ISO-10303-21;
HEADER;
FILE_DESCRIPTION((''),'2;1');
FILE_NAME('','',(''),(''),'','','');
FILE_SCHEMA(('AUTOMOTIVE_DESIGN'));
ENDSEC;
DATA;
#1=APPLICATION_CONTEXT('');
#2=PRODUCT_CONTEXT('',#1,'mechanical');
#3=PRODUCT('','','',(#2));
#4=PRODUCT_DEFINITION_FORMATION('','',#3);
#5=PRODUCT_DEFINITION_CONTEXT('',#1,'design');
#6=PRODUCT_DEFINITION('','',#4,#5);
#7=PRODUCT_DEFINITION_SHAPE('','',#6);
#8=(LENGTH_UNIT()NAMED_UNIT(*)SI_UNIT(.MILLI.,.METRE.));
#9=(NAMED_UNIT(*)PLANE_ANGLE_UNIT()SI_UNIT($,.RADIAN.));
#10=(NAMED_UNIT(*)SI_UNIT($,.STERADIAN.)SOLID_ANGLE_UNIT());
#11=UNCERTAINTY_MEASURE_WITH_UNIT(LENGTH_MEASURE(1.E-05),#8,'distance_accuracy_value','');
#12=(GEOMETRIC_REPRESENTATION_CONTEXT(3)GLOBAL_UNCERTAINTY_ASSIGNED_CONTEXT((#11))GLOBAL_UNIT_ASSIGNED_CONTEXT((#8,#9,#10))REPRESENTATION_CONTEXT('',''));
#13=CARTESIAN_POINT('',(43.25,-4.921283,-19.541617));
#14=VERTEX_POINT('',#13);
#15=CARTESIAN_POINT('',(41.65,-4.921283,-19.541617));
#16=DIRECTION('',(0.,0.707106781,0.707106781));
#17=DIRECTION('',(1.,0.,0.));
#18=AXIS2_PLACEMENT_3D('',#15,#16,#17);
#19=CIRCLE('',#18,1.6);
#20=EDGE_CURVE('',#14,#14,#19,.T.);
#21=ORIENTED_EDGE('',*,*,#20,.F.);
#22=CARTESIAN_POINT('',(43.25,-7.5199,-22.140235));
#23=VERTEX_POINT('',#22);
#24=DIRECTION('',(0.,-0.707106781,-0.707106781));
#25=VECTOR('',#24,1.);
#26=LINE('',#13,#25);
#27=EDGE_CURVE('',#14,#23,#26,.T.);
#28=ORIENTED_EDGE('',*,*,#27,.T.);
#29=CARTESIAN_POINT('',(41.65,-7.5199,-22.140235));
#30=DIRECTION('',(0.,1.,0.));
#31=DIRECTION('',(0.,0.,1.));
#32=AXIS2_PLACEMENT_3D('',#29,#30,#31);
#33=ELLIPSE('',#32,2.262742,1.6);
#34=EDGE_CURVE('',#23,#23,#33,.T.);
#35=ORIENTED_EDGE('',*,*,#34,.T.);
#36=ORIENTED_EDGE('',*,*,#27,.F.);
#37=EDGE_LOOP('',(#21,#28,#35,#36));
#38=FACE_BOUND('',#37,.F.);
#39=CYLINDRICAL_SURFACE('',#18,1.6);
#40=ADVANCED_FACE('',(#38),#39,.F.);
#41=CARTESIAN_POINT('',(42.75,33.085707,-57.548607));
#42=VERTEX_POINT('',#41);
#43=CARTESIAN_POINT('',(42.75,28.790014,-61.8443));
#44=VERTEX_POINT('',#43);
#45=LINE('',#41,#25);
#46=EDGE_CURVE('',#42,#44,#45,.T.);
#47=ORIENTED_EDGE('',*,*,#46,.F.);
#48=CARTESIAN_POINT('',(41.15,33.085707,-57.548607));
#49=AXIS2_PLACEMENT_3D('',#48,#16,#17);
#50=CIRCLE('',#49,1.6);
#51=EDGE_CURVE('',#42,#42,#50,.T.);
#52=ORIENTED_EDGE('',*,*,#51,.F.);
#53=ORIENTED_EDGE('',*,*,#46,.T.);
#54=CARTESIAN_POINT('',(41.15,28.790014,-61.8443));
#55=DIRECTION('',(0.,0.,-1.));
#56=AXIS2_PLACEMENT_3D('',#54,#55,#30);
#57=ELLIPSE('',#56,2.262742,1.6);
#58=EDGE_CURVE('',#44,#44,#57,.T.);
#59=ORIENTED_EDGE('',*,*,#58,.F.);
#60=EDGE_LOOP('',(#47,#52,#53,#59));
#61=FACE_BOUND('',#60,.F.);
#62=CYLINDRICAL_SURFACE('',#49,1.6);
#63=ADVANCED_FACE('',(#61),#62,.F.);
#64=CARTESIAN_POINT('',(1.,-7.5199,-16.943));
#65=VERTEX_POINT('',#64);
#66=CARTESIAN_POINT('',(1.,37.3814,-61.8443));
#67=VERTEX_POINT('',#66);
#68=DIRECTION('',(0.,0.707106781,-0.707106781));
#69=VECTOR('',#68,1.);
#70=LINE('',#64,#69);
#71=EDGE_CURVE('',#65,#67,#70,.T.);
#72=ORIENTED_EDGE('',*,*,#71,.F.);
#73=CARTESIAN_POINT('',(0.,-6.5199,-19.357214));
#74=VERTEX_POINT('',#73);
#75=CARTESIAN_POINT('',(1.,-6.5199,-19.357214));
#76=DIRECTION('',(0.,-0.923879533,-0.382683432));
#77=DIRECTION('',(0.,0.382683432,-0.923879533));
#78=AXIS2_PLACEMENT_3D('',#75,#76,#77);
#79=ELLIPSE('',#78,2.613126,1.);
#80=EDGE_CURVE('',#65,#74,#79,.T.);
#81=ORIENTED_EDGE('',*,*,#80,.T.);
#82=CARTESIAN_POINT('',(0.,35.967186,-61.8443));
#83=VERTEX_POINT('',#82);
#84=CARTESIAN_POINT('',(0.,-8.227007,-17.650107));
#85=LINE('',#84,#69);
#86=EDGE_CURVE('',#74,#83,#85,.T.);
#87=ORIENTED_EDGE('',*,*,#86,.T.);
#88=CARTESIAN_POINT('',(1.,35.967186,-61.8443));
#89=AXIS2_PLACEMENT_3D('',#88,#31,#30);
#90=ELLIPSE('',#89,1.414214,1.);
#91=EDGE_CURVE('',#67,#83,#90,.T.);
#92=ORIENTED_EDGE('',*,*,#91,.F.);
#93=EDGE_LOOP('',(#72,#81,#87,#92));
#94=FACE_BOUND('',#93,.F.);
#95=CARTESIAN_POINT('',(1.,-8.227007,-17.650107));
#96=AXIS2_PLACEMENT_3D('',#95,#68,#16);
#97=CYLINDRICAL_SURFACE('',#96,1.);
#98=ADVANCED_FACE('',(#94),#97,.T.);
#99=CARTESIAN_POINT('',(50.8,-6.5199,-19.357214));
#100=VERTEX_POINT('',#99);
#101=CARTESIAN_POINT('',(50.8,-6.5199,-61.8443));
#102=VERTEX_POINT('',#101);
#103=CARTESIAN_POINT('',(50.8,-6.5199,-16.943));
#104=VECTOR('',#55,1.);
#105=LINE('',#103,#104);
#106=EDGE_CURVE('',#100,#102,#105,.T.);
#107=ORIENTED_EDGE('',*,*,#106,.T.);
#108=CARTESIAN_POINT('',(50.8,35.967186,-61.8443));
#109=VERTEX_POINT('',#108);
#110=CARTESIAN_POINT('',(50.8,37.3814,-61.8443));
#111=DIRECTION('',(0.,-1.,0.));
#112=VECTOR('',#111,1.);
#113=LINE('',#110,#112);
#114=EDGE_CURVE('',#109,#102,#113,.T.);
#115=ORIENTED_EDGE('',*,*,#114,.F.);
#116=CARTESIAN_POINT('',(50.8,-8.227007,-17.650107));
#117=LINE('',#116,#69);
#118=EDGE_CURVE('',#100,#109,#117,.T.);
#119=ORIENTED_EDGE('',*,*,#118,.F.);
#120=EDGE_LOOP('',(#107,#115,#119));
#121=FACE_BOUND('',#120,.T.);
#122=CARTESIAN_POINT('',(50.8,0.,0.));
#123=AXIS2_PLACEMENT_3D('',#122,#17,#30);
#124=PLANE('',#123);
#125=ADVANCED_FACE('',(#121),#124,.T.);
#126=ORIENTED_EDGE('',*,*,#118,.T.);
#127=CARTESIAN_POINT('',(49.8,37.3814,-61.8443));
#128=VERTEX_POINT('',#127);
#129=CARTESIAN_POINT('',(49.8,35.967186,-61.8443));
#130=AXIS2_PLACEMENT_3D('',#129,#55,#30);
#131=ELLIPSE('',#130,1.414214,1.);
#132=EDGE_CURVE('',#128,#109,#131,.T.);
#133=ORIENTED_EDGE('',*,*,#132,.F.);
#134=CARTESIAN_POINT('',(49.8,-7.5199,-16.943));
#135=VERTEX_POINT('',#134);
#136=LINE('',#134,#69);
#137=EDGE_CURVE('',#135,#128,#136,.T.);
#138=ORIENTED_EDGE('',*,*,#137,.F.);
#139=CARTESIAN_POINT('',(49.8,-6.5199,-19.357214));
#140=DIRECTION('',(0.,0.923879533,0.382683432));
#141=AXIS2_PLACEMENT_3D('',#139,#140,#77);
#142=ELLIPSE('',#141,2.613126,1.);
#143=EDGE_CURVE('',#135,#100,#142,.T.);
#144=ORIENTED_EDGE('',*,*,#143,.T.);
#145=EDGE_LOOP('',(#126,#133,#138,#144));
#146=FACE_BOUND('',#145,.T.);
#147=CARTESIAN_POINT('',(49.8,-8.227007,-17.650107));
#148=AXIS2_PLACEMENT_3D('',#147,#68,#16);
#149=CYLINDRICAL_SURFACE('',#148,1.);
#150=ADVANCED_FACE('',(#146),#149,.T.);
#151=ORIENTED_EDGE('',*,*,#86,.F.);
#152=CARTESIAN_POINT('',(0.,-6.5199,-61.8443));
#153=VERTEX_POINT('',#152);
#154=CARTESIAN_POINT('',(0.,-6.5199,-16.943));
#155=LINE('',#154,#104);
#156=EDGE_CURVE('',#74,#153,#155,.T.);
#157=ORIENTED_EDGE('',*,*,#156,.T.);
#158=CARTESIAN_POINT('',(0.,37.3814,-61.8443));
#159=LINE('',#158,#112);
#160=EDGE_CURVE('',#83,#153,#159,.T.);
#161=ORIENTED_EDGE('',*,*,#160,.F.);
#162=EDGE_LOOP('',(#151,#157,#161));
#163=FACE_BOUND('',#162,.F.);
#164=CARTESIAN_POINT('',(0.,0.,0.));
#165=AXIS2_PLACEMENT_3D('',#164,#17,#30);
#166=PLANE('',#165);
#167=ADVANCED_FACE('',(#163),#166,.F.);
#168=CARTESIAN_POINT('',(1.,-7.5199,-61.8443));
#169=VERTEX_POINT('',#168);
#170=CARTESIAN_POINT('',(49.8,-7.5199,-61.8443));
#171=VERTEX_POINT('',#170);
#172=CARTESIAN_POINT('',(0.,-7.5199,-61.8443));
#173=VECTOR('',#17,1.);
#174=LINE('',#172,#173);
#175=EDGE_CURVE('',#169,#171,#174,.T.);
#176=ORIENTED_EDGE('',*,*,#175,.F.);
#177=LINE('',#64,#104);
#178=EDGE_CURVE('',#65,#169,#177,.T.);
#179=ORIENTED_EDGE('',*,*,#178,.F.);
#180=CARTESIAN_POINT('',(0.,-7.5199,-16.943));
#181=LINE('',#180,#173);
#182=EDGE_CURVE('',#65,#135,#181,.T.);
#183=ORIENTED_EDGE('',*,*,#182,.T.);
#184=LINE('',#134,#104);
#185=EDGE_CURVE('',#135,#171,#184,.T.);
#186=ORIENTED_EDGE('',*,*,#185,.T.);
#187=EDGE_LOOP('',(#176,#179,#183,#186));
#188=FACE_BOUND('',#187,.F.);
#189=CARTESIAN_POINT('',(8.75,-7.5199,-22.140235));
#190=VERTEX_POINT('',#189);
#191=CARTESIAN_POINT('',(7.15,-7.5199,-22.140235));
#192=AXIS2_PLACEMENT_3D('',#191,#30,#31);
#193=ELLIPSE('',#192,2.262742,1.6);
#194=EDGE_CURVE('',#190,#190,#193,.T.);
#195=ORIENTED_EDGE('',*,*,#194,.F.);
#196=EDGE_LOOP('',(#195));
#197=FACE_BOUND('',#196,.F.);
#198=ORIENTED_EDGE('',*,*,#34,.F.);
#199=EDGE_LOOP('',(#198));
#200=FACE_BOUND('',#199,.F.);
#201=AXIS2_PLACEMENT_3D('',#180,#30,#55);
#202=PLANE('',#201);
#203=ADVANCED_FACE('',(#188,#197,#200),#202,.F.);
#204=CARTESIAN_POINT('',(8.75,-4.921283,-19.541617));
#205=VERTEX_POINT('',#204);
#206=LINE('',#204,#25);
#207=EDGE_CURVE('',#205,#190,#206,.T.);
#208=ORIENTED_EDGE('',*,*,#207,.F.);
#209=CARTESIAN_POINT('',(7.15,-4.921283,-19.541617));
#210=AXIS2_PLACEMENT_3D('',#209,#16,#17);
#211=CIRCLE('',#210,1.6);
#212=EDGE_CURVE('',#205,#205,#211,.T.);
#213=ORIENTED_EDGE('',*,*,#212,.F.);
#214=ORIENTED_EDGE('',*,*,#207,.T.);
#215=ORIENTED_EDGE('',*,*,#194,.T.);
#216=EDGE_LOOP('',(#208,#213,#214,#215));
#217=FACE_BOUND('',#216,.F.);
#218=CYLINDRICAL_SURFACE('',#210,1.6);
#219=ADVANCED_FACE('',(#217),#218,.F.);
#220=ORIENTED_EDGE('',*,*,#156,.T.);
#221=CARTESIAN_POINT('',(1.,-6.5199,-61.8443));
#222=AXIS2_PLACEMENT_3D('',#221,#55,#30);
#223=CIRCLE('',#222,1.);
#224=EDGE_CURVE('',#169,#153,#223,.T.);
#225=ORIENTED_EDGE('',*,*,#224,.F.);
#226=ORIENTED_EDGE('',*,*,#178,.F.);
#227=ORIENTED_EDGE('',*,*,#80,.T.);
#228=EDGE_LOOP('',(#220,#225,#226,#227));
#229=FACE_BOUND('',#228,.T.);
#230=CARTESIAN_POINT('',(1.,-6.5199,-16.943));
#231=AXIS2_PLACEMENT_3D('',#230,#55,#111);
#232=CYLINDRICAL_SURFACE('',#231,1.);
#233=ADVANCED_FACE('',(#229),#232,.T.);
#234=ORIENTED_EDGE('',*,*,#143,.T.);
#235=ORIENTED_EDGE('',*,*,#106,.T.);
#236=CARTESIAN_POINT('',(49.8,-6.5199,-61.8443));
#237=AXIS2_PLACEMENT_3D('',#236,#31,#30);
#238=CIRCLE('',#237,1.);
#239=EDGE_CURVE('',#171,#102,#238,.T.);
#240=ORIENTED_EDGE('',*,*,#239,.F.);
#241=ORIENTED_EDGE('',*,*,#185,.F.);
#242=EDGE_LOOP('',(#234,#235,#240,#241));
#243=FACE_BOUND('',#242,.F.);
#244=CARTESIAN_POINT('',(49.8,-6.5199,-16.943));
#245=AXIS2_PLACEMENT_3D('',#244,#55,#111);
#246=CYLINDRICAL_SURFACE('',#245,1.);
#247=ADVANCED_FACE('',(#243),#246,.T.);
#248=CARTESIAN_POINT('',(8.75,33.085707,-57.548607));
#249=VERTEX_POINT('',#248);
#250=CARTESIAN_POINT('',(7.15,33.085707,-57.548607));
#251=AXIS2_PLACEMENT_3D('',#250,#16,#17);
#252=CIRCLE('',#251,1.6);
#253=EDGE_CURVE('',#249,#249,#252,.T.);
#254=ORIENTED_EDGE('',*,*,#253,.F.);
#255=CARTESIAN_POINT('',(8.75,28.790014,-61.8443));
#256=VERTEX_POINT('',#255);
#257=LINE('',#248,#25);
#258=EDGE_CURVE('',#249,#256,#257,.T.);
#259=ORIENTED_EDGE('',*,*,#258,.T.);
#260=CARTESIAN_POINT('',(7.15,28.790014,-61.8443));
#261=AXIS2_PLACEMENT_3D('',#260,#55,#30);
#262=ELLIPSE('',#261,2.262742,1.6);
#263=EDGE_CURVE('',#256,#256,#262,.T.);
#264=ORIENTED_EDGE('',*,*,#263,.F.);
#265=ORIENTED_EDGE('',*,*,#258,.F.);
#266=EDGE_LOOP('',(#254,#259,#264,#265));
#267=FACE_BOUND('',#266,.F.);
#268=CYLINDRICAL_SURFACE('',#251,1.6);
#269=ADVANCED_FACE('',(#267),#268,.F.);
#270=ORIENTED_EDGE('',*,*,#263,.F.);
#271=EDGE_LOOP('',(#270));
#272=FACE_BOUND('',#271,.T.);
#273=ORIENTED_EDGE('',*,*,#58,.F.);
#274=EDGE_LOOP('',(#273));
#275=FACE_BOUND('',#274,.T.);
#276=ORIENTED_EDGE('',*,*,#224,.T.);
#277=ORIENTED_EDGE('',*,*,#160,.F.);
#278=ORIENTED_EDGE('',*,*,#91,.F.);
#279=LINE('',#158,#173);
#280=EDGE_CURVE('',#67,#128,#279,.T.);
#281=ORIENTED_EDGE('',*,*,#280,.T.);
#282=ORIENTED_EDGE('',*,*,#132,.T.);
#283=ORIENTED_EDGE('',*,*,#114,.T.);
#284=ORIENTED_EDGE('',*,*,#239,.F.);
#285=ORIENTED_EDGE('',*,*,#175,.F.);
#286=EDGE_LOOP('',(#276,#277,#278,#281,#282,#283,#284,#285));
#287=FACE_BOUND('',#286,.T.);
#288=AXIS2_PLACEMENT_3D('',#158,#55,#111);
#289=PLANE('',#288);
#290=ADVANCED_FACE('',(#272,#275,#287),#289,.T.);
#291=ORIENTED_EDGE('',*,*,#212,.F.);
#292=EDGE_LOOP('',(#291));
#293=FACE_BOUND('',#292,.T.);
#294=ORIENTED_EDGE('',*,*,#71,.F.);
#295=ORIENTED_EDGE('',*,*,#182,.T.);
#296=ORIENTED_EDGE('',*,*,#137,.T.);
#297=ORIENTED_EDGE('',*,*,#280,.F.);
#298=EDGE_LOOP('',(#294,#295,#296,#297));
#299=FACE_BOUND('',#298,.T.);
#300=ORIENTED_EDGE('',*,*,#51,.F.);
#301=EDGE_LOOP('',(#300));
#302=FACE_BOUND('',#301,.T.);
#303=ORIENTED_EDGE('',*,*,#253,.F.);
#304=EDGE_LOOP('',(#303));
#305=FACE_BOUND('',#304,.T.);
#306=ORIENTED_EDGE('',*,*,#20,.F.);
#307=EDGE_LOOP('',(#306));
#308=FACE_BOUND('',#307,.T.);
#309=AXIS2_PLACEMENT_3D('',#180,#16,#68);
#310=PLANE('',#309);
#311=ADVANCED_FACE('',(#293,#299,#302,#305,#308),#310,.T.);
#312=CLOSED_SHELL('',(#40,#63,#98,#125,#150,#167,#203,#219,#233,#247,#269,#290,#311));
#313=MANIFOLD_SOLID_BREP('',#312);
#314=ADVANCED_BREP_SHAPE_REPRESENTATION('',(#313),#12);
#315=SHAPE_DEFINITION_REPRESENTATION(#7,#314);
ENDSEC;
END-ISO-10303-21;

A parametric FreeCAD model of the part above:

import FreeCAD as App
import Part
import Sketcher
from FreeCAD import Vector


def edges_at(feature, points):
    """Names of the edges that pass closest to the given points."""
    edges = feature.Shape.Edges
    near = lambda p: min(range(len(edges)), key=lambda i: edges[i].distToShape(Part.Vertex(*p))[0])
    return sorted({f"Edge{near(p) + 1}" for p in points})

doc = App.newDocument("Part")
body = doc.addObject("PartDesign::Body", "Body")

# Sketch on YZ plane
sketch1 = body.newObject("Sketcher::SketchObject", "Sketch")
sketch1.AttachmentSupport = (doc.getObject("YZ_Plane"), [""])
sketch1.MapMode = "FlatFace"
sketch1.addGeometry([
    Part.LineSegment(Vector(37, -62, 0), Vector(-8, -17, 0)),
    Part.LineSegment(Vector(-8, -17, 0), Vector(-8, -62, 0)),
    Part.LineSegment(Vector(-8, -62, 0), Vector(37, -62, 0)),
], False)
sketch1.addConstraint([
    Sketcher.Constraint("Coincident", 0, 2, 1, 1),
    Sketcher.Constraint("Coincident", 1, 2, 2, 1),
    Sketcher.Constraint("Coincident", 2, 2, 0, 1),
    Sketcher.Constraint("Vertical", 1),
    Sketcher.Constraint("Horizontal", 2),
    Sketcher.Constraint("Equal", 2, 1),
    Sketcher.Constraint("Distance", 0, 63.5),
    Sketcher.Constraint("DistanceX", 0, 2, -1, 1, 7.52),
    Sketcher.Constraint("DistanceY", 0, 2, -1, 1, 16.943),
])
pad1 = body.newObject("PartDesign::Pad", "Pad")
pad1.Profile = sketch1
pad1.Length = 50.8

# Sketch on an angled plane
sketch2 = body.newObject("Sketcher::SketchObject", "Sketch001")
sketch2.Placement = App.Placement(Vector(0, -7.5199, -16.943), App.Rotation(Vector(1, 0, 0), Vector(0, 0.707106781, -0.707106781), Vector(0, 0.707106781, 0.707106781), "ZXY"))
sketch2.addGeometry([
    Part.Circle(Vector(41.6, 3.7, 0), Vector(0, 0, 1), 1.6),
    Part.Circle(Vector(41.1, 57.4, 0), Vector(0, 0, 1), 1.6),
    Part.Circle(Vector(7.2, 57.4, 0), Vector(0, 0, 1), 1.6),
    Part.Circle(Vector(7.2, 3.7, 0), Vector(0, 0, 1), 1.6),
], False)
sketch2.addConstraint([
    Sketcher.Constraint("Equal", 0, 1),
    Sketcher.Constraint("Equal", 1, 2),
    Sketcher.Constraint("Equal", 2, 3),
    Sketcher.Constraint("Horizontal", 1, 3, 2, 3),
    Sketcher.Constraint("Horizontal", 0, 3, 3, 3),
    Sketcher.Constraint("Vertical", 2, 3, 3, 3),
    Sketcher.Constraint("Diameter", 0, 3.2),
    Sketcher.Constraint("DistanceX", 2, 3, 1, 3, 34.0),
    Sketcher.Constraint("DistanceX", 1, 3, 0, 3, 0.5),
    Sketcher.Constraint("DistanceX", -1, 1, 0, 3, 41.65),
    Sketcher.Constraint("DistanceY", 0, 3, 1, 3, 53.75),
    Sketcher.Constraint("DistanceY", -1, 1, 0, 3, 3.675),
])
pocket1 = body.newObject("PartDesign::Pocket", "Pocket")
pocket1.Profile = sketch2
pocket1.Type = "ThroughAll"
doc.recompute()

fillet = body.newObject("PartDesign::Fillet", "Fillet")
fillet.Base = (pocket1, edges_at(pocket1, [
    (50.8, -7.52, -39.394),
    (50.8, 14.931, -39.394),
    (0, 14.931, -39.394),
    (0, -7.52, -39.394),
]))
fillet.Radius = 1

doc.recompute()
